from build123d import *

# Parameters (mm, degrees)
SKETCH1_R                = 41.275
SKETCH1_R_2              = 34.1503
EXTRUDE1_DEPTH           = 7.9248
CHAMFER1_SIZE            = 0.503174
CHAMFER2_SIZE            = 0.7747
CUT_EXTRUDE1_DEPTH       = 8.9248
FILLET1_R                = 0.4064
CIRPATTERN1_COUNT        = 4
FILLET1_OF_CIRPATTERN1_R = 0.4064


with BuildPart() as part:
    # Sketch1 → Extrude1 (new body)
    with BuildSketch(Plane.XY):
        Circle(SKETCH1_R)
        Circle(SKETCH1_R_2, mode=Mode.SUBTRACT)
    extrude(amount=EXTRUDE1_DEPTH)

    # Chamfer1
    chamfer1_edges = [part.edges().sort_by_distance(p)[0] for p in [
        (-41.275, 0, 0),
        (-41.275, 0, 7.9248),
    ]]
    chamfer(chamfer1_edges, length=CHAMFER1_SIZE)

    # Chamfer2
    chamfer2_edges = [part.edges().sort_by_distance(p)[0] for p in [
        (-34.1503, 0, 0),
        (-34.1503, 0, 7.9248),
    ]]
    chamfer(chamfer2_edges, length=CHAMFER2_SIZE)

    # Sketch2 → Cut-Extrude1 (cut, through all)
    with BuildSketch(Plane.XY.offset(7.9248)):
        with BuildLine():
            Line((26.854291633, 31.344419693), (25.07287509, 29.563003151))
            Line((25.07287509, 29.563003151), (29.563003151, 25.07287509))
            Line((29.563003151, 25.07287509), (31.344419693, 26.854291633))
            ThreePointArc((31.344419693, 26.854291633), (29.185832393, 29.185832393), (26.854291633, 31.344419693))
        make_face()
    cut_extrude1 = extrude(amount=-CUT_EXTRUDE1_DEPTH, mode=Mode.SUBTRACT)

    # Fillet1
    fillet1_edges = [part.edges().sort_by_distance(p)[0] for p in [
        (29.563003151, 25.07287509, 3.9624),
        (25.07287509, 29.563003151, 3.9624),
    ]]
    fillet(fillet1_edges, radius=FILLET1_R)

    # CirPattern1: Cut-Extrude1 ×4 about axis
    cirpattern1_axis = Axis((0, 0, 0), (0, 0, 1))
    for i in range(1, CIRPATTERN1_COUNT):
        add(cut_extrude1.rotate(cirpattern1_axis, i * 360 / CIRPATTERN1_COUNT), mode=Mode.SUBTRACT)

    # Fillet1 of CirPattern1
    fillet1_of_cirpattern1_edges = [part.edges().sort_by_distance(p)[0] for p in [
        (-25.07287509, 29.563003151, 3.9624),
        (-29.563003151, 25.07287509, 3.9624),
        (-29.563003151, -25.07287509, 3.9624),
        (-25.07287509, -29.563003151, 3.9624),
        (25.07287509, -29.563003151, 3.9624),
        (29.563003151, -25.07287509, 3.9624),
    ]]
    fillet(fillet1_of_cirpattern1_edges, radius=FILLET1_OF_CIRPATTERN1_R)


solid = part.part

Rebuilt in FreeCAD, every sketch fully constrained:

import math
import FreeCAD as App
import Part
import Sketcher

V = App.Vector
Q = App.Units.Quantity


def edges_at(feature, points):
    """Names of the edges that pass closest to the given points."""
    edges = feature.Shape.Edges
    near = lambda p: min(range(len(edges)), key=lambda i: edges[i].distToShape(Part.Vertex(*p))[0])
    return sorted({f"Edge{near(p) + 1}" for p in points})

doc = App.newDocument("Part")
body = doc.addObject("PartDesign::Body", "Body")

# Sketch on XY plane
sketch1 = doc.addObject("Sketcher::SketchObject", "Sketch")
body.addObject(sketch1)
sketch1.AttachmentSupport = (doc.XY_Plane, [""])
sketch1.MapMode = "FlatFace"
sketch1.addGeometry(Part.Circle(V(0, 0, 0), V(0, 0, 1), 41), False)
sketch1.addGeometry(Part.Circle(V(0, 0, 0), V(0, 0, 1), 34), False)
sketch1.addConstraint(Sketcher.Constraint("Coincident", 0, 3, -1, 1))
sketch1.addConstraint(Sketcher.Constraint("Coincident", 1, 3, -1, 1))
sketch1.addConstraint(Sketcher.Constraint("Diameter", 0, Q("3.25 in")))
sketch1.addConstraint(Sketcher.Constraint("Diameter", 1, Q("2.689 in")))
pad1 = doc.addObject("PartDesign::Pad", "Pad")
body.addObject(pad1)
pad1.Profile = sketch1
pad1.Length = Q("0.312 in")
doc.recompute()

chamfer = doc.addObject("PartDesign::Chamfer", "Chamfer")
body.addObject(chamfer)
chamfer.Base = (pad1, edges_at(pad1, [(-41.275, 0, 0), (-41.275, 0, 7.925)]))
chamfer.Size = 0.503174
doc.recompute()

chamfer2 = doc.addObject("PartDesign::Chamfer", "Chamfer001")
body.addObject(chamfer2)
chamfer2.Base = (chamfer, edges_at(chamfer, [(-34.15, 0, 0), (-34.15, 0, 7.925)]))
chamfer2.Size = Q("0.0305 in")

# Sketch on XY plane
sketch2 = doc.addObject("Sketcher::SketchObject", "Sketch001")
body.addObject(sketch2)
sketch2.AttachmentSupport = (doc.XY_Plane, [""])
sketch2.MapMode = "FlatFace"
sketch2.AttachmentOffset = App.Placement(V(0, 0, 0.312 * 25.4), App.Rotation())
sketch2.addGeometry(Part.LineSegment(V(26.9, 31.3, 0), V(25.1, 29.6, 0)), False)
sketch2.addGeometry(Part.LineSegment(V(25.1, 29.6, 0), V(29.6, 25.1, 0)), False)
sketch2.addGeometry(Part.LineSegment(V(29.6, 25.1, 0), V(31.3, 26.9, 0)), False)
sketch2.addGeometry(Part.ArcOfCircle(Part.Circle(V(0, 0, 0), V(0, 0, 1), 41.3), math.radians(40.59), math.radians(49.41)), False)
sketch2.addConstraint(Sketcher.Constraint("Coincident", 0, 2, 1, 1))
sketch2.addConstraint(Sketcher.Constraint("Coincident", 1, 2, 2, 1))
sketch2.addConstraint(Sketcher.Constraint("Coincident", 2, 2, 3, 1))
sketch2.addConstraint(Sketcher.Constraint("Coincident", 3, 2, 0, 1))
sketch2.addConstraint(Sketcher.Constraint("Coincident", 3, 3, -1, 1))
sketch2.addConstraint(Sketcher.Constraint("Perpendicular", 0, 1))
sketch2.addConstraint(Sketcher.Constraint("Perpendicular", 1, 2))
sketch2.addConstraint(Sketcher.Constraint("Equal", 0, 2))
sketch2.addConstraint(Sketcher.Constraint("Angle", 0, Q("-135 deg")))
sketch2.addConstraint(Sketcher.Constraint("Radius", 3, Q("1.625 in")))
sketch2.addConstraint(Sketcher.Constraint("Distance", 1, Q("0.25 in")))
sketch2.addConstraint(Sketcher.Constraint("DistanceY", 2, 2, 0, 2, Q("2.708712 mm")))
pocket1 = doc.addObject("PartDesign::Pocket", "Pocket")
body.addObject(pocket1)
pocket1.Profile = sketch2
pocket1.Type = "ThroughAll"
doc.recompute()

fillet = doc.addObject("PartDesign::Fillet", "Fillet")
body.addObject(fillet)
fillet.Base = (pocket1, edges_at(pocket1, [(29.563, 25.073, 3.962), (25.073, 29.563, 3.962)]))
fillet.Radius = Q("0.016 in")
doc.recompute()

polarpattern = doc.addObject("PartDesign::PolarPattern", "PolarPattern")
body.addObject(polarpattern)
polarpattern.Originals = [pocket1]
polarpattern.Axis = (doc.Z_Axis, [""])
polarpattern.Angle = 360
polarpattern.Occurrences = 4
body.Tip = polarpattern
doc.recompute()

fillet2 = doc.addObject("PartDesign::Fillet", "Fillet001")
body.addObject(fillet2)
fillet2.Base = (polarpattern, edges_at(polarpattern, [
    (-25.073, 29.563, 3.962),
    (-29.563, 25.073, 3.962),
    (-29.563, -25.073, 3.962),
    (-25.073, -29.563, 3.962),
    (25.073, -29.563, 3.962),
    (29.563, -25.073, 3.962),
]))
fillet2.Radius = Q("0.016 in")

doc.recompute()
